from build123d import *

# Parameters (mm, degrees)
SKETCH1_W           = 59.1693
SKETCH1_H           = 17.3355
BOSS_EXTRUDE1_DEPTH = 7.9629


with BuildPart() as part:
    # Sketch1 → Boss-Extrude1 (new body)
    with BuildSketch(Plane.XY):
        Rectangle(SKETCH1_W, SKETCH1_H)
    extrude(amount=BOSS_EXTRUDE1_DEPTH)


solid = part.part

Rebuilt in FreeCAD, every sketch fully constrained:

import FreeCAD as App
import Part
import Sketcher
from FreeCAD import Vector
Q = App.Units.Quantity


def add_polygon(sketch, points):
    """Adds a closed chain of lines whose ends are joined by coincident constraints."""
    first, n = sketch.GeometryCount, len(points)
    for a, b in zip(points, points[1:] + points[:1]):
        sketch.addGeometry(Part.LineSegment(App.Vector(*a, 0), App.Vector(*b, 0)), False)
    for i in range(n):
        sketch.addConstraint(Sketcher.Constraint("Coincident", first + i, 2, first + (i + 1) % n, 1))

doc = App.newDocument("Part")
body = doc.addObject("PartDesign::Body", "Body")

sketch1 = doc.addObject("Sketcher::SketchObject", "Sketch")
body.addObject(sketch1)
sketch1.AttachmentSupport = (doc.XY_Plane, [""])
sketch1.MapMode = "FlatFace"
add_polygon(sketch1, [(-30, 9), (-30, -9), (30, -9), (30, 9)])
sketch1.addConstraint([
    Sketcher.Constraint("Vertical", 0),
    Sketcher.Constraint("Horizontal", 1),
    Sketcher.Constraint("Vertical", 2),
    Sketcher.Constraint("Horizontal", 3),
    Sketcher.Constraint("Symmetric", 0, 2, 2, 2, -1, 1),
    Sketcher.Constraint("DistanceX", 1, 1, 1, 2, Q("59.1693 mm")),
    Sketcher.Constraint("DistanceY", 0, 2, 0, 1, Q("17.3355 mm")),
])
pad1 = doc.addObject("PartDesign::Pad", "Pad")
body.addObject(pad1)
pad1.Profile = sketch1
pad1.Length = 7.9629

doc.recompute()
